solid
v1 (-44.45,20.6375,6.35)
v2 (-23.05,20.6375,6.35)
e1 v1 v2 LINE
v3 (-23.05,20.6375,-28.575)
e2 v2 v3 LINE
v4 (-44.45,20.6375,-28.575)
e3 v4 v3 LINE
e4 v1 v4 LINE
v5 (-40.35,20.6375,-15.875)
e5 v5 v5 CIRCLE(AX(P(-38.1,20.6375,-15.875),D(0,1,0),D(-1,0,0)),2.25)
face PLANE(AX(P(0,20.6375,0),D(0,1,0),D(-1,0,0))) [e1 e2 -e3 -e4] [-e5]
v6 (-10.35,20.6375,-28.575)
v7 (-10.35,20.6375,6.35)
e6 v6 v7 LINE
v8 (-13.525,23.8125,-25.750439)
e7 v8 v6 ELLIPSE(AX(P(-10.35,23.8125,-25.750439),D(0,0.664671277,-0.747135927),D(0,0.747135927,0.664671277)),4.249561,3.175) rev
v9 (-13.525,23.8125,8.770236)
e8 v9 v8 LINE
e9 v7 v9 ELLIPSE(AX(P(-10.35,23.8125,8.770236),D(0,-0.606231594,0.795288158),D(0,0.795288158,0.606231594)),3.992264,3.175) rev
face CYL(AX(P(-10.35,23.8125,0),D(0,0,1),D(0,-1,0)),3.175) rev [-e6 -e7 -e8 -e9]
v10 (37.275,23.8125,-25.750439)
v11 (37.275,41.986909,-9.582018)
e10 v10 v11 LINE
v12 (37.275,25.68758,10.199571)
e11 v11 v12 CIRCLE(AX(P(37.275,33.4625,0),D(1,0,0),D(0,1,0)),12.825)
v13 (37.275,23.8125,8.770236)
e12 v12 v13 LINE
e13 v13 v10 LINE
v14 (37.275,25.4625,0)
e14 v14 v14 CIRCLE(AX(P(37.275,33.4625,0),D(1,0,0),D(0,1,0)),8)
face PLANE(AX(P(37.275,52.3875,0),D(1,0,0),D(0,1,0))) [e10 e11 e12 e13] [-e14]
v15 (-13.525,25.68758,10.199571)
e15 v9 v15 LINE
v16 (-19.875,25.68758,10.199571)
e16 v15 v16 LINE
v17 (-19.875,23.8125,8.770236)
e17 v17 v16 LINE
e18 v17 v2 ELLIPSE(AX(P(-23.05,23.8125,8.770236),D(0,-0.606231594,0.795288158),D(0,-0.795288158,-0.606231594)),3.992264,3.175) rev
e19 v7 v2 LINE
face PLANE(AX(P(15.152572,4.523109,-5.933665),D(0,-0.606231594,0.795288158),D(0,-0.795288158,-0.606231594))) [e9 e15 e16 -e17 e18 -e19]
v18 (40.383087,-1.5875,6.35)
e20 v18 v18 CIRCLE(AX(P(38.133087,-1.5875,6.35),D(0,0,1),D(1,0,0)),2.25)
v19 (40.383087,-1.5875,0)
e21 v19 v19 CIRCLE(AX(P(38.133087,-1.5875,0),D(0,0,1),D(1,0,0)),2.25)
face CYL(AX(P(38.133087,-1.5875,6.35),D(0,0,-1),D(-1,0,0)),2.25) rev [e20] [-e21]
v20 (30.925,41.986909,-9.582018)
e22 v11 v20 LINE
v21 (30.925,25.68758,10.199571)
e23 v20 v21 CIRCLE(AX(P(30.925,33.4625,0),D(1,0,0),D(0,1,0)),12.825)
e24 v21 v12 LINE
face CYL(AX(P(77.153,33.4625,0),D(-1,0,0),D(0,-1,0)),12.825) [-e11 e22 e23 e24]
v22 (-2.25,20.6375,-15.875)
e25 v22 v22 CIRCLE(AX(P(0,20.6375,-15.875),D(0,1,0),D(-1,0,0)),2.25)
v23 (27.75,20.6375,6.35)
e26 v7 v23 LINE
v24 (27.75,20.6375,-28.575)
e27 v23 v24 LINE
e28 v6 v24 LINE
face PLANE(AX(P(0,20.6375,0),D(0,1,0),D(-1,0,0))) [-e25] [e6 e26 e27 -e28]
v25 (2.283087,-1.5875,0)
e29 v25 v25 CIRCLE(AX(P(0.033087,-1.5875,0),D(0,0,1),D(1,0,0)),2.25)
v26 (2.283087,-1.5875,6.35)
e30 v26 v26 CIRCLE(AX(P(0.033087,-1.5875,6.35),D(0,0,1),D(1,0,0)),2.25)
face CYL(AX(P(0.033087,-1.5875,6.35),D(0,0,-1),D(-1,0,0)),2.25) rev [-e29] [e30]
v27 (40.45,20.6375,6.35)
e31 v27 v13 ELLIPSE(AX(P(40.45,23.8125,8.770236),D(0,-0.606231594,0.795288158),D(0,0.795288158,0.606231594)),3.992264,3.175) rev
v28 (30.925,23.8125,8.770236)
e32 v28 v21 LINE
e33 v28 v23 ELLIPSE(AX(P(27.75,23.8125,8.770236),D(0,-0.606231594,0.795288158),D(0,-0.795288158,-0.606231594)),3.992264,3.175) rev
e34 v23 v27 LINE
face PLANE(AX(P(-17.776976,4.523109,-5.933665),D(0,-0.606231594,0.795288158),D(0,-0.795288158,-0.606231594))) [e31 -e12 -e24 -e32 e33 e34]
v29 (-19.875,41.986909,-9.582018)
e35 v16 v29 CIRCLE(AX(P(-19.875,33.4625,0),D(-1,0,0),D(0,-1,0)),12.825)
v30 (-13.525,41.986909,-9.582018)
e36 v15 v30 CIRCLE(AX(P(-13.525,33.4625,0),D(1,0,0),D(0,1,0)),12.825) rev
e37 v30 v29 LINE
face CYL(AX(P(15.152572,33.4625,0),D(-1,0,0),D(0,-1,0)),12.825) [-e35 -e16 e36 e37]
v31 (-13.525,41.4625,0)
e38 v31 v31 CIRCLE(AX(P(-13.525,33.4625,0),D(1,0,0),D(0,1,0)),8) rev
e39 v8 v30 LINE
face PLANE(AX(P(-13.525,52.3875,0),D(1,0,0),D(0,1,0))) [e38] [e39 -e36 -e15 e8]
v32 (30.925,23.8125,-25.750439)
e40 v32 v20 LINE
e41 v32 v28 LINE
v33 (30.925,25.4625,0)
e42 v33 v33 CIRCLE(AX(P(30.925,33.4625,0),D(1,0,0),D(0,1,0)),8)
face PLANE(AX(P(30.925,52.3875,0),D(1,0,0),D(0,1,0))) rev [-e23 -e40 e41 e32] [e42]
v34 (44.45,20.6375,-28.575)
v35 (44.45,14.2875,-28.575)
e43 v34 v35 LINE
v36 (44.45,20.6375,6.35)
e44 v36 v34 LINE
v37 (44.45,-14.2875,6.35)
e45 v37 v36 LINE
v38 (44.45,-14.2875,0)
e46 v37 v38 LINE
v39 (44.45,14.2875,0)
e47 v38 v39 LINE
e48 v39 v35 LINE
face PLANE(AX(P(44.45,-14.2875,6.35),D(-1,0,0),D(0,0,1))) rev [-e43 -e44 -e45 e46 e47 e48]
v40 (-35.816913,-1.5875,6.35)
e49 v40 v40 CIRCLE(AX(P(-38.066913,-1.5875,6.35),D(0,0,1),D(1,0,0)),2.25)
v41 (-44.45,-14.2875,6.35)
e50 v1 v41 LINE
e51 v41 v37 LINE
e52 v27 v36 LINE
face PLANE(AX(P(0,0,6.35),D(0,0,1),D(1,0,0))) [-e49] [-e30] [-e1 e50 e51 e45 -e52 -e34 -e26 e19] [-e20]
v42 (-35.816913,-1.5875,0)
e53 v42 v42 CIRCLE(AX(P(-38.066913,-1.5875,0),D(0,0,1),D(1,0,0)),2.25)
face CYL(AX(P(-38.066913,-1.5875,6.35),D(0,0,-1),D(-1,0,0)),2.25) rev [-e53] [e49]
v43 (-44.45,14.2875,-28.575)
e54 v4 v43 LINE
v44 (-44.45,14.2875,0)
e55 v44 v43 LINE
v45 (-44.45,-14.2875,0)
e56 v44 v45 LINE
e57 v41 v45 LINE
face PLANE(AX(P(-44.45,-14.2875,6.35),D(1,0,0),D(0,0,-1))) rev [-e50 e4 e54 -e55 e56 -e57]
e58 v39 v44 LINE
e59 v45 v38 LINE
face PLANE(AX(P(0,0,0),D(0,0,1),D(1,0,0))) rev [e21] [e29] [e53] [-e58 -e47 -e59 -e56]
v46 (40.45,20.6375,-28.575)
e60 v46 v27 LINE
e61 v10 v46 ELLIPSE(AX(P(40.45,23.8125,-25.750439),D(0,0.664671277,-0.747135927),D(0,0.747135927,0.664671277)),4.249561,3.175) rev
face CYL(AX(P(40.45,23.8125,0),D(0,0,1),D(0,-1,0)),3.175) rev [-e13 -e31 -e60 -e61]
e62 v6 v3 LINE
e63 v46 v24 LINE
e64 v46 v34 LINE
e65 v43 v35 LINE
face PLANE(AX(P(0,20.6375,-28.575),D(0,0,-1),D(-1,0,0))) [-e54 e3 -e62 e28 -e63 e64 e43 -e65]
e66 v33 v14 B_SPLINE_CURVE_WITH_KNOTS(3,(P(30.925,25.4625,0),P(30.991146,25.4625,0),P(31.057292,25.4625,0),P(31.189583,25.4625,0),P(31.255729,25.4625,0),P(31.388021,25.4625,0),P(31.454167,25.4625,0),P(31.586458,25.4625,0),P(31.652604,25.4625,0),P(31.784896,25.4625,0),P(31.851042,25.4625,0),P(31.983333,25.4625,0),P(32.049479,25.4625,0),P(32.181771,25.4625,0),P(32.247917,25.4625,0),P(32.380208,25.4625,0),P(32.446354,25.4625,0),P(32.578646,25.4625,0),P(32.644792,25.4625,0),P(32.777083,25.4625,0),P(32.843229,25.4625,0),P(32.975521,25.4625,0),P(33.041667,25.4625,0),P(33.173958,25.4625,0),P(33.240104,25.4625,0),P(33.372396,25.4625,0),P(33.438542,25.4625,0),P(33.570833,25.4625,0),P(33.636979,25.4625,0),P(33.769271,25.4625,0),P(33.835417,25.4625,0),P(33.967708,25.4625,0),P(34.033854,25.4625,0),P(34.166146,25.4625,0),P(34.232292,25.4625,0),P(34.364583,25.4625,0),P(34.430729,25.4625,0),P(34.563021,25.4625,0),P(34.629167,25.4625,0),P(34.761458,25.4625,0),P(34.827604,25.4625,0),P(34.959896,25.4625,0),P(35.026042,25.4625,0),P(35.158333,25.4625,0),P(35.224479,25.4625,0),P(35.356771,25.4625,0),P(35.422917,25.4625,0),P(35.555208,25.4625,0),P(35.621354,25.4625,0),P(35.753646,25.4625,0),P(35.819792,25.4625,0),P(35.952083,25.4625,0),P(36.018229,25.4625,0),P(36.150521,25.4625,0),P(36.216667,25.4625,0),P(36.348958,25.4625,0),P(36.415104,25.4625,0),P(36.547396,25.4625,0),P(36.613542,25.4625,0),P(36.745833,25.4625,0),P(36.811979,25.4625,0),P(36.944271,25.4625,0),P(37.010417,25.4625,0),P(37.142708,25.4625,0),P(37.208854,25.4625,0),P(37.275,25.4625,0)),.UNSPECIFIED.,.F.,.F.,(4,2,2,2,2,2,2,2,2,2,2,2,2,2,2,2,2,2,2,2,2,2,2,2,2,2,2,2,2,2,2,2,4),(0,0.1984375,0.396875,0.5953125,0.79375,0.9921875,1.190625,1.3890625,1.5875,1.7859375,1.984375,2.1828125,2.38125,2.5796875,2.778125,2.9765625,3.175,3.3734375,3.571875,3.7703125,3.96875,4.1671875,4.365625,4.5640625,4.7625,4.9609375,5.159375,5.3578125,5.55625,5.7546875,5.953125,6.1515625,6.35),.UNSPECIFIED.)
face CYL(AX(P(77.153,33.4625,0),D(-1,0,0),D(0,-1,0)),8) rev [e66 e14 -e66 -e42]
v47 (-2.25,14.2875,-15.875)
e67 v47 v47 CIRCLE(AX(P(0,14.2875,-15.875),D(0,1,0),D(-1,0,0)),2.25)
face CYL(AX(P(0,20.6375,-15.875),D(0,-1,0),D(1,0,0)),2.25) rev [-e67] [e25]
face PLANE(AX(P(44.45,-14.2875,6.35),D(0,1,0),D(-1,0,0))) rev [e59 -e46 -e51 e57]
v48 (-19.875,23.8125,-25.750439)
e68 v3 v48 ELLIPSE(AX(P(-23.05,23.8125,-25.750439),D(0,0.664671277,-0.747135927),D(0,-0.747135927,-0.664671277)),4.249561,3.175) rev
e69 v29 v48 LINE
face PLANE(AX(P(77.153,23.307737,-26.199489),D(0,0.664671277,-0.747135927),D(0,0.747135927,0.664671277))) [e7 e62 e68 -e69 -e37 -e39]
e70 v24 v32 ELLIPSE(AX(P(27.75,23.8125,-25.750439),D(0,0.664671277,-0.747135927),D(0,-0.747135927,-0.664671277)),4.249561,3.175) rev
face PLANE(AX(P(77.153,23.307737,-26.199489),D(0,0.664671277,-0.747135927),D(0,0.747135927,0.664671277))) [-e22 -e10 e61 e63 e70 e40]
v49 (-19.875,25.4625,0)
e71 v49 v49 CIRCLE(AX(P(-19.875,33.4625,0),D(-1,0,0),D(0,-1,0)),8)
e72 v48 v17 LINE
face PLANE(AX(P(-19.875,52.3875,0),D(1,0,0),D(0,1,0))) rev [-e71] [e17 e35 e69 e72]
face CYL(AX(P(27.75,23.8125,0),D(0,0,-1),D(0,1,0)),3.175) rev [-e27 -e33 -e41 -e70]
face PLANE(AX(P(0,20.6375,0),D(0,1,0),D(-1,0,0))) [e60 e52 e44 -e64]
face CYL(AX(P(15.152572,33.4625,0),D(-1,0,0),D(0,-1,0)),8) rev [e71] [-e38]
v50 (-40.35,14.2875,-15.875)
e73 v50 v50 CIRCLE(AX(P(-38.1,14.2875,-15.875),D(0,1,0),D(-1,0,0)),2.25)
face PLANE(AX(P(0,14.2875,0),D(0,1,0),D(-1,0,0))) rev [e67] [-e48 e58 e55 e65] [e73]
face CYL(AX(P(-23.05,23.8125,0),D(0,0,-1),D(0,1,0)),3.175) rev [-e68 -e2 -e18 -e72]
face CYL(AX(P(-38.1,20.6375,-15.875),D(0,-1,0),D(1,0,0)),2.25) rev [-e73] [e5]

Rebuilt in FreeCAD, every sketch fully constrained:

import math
import FreeCAD as App
import Part
import Sketcher
from FreeCAD import Vector
Q = App.Units.Quantity


def edges_at(feature, points):
    """Names of the edges that pass closest to the given points."""
    edges = feature.Shape.Edges
    near = lambda p: min(range(len(edges)), key=lambda i: edges[i].distToShape(Part.Vertex(*p))[0])
    return sorted({f"Edge{near(p) + 1}" for p in points})


def add_polygon(sketch, points):
    """Adds a closed chain of lines whose ends are joined by coincident constraints."""
    first, n = sketch.GeometryCount, len(points)
    for a, b in zip(points, points[1:] + points[:1]):
        sketch.addGeometry(Part.LineSegment(App.Vector(*a, 0), App.Vector(*b, 0)), False)
    for i in range(n):
        sketch.addConstraint(Sketcher.Constraint("Coincident", first + i, 2, first + (i + 1) % n, 1))

doc = App.newDocument("Part")
body = doc.addObject("PartDesign::Body", "Body")

sketch1 = doc.addObject("Sketcher::SketchObject", "Sketch")
body.addObject(sketch1)
sketch1.AttachmentSupport = (doc.XY_Plane, [""])
sketch1.MapMode = "FlatFace"
add_polygon(sketch1, [(-44.45, 14.2875), (-44.45, -14.2875), (44.45, -14.2875), (44.45, 14.2875)])
sketch1.addGeometry(Part.Circle(Vector(-38.066913, -1.5875, 0), Vector(0, 0, 1), 2.25), False)
sketch1.addGeometry(Part.Circle(Vector(0.033087, -1.5875, 0), Vector(0, 0, 1), 2.25), False)
sketch1.addGeometry(Part.Circle(Vector(38.133087, -1.5875, 0), Vector(0, 0, 1), 2.25), False)
sketch1.addConstraint([
    Sketcher.Constraint("Vertical", 0),
    Sketcher.Constraint("Horizontal", 1),
    Sketcher.Constraint("Vertical", 2),
    Sketcher.Constraint("Horizontal", 3),
    Sketcher.Constraint("Equal", 4, 5),
    Sketcher.Constraint("Equal", 5, 6),
    Sketcher.Constraint("Symmetric", 0, 2, 2, 2, -1, 1),
    Sketcher.Constraint("Horizontal", 4, 3, 5, 3),
    Sketcher.Constraint("Horizontal", 5, 3, 6, 3),
    Sketcher.Constraint("DistanceX", 1, 1, 1, 2, Q("3.5 in")),
    Sketcher.Constraint("DistanceX", 4, 3, 6, 3, Q("3 in")),
    Sketcher.Constraint("DistanceX", 4, 3, 5, 3, Q("1.5 in")),
    Sketcher.Constraint("DistanceY", 0, 2, 4, 3, Q("0.5 in")),
    Sketcher.Constraint("Diameter", 4, 4.5),
    Sketcher.Constraint("DistanceY", 0, 2, 0, 1, Q("1.125 in")),
    Sketcher.Constraint("DistanceX", 4, 3, -1, 1, 38.066913),
])
pad1 = doc.addObject("PartDesign::Pad", "Pad")
body.addObject(pad1)
pad1.Profile = sketch1
pad1.Length = Q("0.25 in")

sketch2 = doc.addObject("Sketcher::SketchObject", "Sketch001")
body.addObject(sketch2)
sketch2.AttachmentSupport = (doc.XZ_Plane, [""])
sketch2.MapMode = "FlatFace"
sketch2.AttachmentOffset = App.Placement(Vector(0, 0, -0.5625 * 25.4), App.Rotation())
add_polygon(sketch2, [(-44.45, -28.575), (-44.45, 6.35), (44.45, 6.35), (44.45, -28.575)])
sketch2.addGeometry(Part.Circle(Vector(-38.1, -15.875, 0), Vector(0, 0, 1), 2.25), False)
sketch2.addGeometry(Part.Circle(Vector(0, -15.875, 0), Vector(0, 0, 1), 2.25), False)
sketch2.addConstraint([
    Sketcher.Constraint("Vertical", 0),
    Sketcher.Constraint("Horizontal", 1),
    Sketcher.Constraint("Vertical", 2),
    Sketcher.Constraint("Horizontal", 3),
    Sketcher.Constraint("Equal", 4, 5),
    Sketcher.Constraint("PointOnObject", 5, 3, -2),
    Sketcher.Constraint("Horizontal", 4, 3, 5, 3),
    Sketcher.Constraint("DistanceX", 1, 1, 1, 2, Q("3.5 in")),
    Sketcher.Constraint("DistanceX", 4, 3, -1, 1, Q("1.5 in")),
    Sketcher.Constraint("DistanceY", 2, 2, 5, 3, Q("0.5 in")),
    Sketcher.Constraint("Diameter", 4, 4.5),
    Sketcher.Constraint("DistanceY", 0, 1, 0, 2, Q("1.375 in")),
    Sketcher.Constraint("DistanceX", 0, 2, -1, 1, Q("1.75 in")),
    Sketcher.Constraint("DistanceY", -1, 1, 0, 2, Q("0.25 in")),
])
pad2 = doc.addObject("PartDesign::Pad", "Pad001")
body.addObject(pad2)
pad2.Profile = sketch2
pad2.Length = Q("0.25 in")
pad2.Reversed = True

sketch3 = doc.addObject("Sketcher::SketchObject", "Sketch002")
body.addObject(sketch3)
sketch3.AttachmentSupport = (doc.XZ_Plane, [""])
sketch3.MapMode = "FlatFace"
sketch3.AttachmentOffset = App.Placement(Vector(0, 0, -0.5625 * 25.4), App.Rotation())
add_polygon(sketch3, [(-19.875, -28.575), (-19.875, 0), (-13.525, 0), (-13.525, -28.575)])
add_polygon(sketch3, [(30.925, -28.575), (30.925, 0), (37.275, 0), (37.275, -28.575)])
sketch3.addConstraint([
    Sketcher.Constraint("Vertical", 0),
    Sketcher.Constraint("Horizontal", 1),
    Sketcher.Constraint("Vertical", 2),
    Sketcher.Constraint("Horizontal", 3),
    Sketcher.Constraint("Vertical", 4),
    Sketcher.Constraint("Horizontal", 5),
    Sketcher.Constraint("Vertical", 6),
    Sketcher.Constraint("Horizontal", 7),
    Sketcher.Constraint("PointOnObject", 0, 2, -1),
    Sketcher.Constraint("PointOnObject", 4, 2, -1),
    Sketcher.Constraint("Horizontal", 3, 2, 6, 2),
    Sketcher.Constraint("Equal", 3, 5),
    Sketcher.Constraint("DistanceX", 0, 2, 4, 2, Q("2 in")),
    Sketcher.Constraint("DistanceX", 1, 1, 1, 2, Q("0.25 in")),
    Sketcher.Constraint("DistanceY", 0, 1, 0, 2, Q("1.125 in")),
    Sketcher.Constraint("DistanceX", 0, 2, -1, 1, 19.875),
])
pad3 = doc.addObject("PartDesign::Pad", "Pad002")
body.addObject(pad3)
pad3.Profile = sketch3
pad3.Length = Q("1.5 in")
pad3.Reversed = True

sketch4 = doc.addObject("Sketcher::SketchObject", "Sketch003")
body.addObject(sketch4)
sketch4.AttachmentSupport = (doc.YZ_Plane, [""])
sketch4.MapMode = "FlatFace"
sketch4.AttachmentOffset = App.Placement(Vector(0, 0, -19.875), App.Rotation())
sketch4.addGeometry([
    Part.ArcOfCircle(Part.Circle(Vector(33.4625, 0, 0), Vector(0, 0, 1), 12.825), math.radians(90), math.radians(127.317519)),
    Part.ArcOfCircle(Part.Circle(Vector(33.4625, 0, 0), Vector(0, 0, 1), 12.825), math.radians(0), math.radians(90)),
    Part.ArcOfCircle(Part.Circle(Vector(33.4625, 0, 0), Vector(0, 0, 1), 12.825), math.radians(-48.342888), math.radians(0)),
    Part.ArcOfCircle(Part.Circle(Vector(33.4625, 0, 0), Vector(0, 0, 1), 12.825), math.radians(180), math.radians(311.657112)),
    Part.LineSegment(Vector(20.6375, 0, 0), Vector(20.6375, 6.35, 0)),
    Part.LineSegment(Vector(20.6375, 6.35, 0), Vector(25.68758, 10.199571, 0)),
    Part.ArcOfCircle(Part.Circle(Vector(33.4625, 0, 0), Vector(0, 0, 1), 8), math.radians(0), math.radians(90)),
    Part.ArcOfCircle(Part.Circle(Vector(33.4625, 0, 0), Vector(0, 0, 1), 8), math.radians(90), math.radians(180)),
    Part.ArcOfCircle(Part.Circle(Vector(33.4625, 0, 0), Vector(0, 0, 1), 8), math.radians(180), math.radians(360)),
], False)
sketch4.addConstraint([
    Sketcher.Constraint("Tangent", 0, 1, 1, 2),
    Sketcher.Constraint("Tangent", 1, 1, 2, 2),
    Sketcher.Constraint("Tangent", 2, 1, 3, 2),
    Sketcher.Constraint("Tangent", 3, 1, 4, 1),
    Sketcher.Constraint("Coincident", 4, 2, 5, 1),
    Sketcher.Constraint("Tangent", 5, 2, 0, 2),
    Sketcher.Constraint("Tangent", 6, 2, 7, 1),
    Sketcher.Constraint("Tangent", 7, 2, 8, 1),
    Sketcher.Constraint("Tangent", 8, 2, 6, 1),
    Sketcher.Constraint("Vertical", 4),
    Sketcher.Constraint("Coincident", 2, 3, 0, 3),
    Sketcher.Constraint("Coincident", 6, 3, 0, 3),
    Sketcher.Constraint("Equal", 2, 3),
    Sketcher.Constraint("PointOnObject", 0, 3, -1),
    Sketcher.Constraint("PointOnObject", 1, 1, -1),
    Sketcher.Constraint("PointOnObject", 7, 2, -1),
    Sketcher.Constraint("PointOnObject", 8, 2, -1),
    Sketcher.Constraint("Vertical", 8, 3, 0, 1),
    Sketcher.Constraint("Vertical", 0, 1, 6, 2),
    Sketcher.Constraint("DistanceY", 4, 1, 4, 2, Q("0.25 in")),
    Sketcher.Constraint("Radius", 0, 12.825),
    Sketcher.Constraint("Radius", 6, 8.0),
    Sketcher.Constraint("DistanceX", -1, 1, 3, 1, Q("0.8125 in")),
    Sketcher.Constraint("DistanceX", -1, 1, 2, 1, 41.986909),
])
pad4 = doc.addObject("PartDesign::Pad", "Pad003")
body.addObject(pad4)
pad4.Profile = sketch4
pad4.Length = Q("0.25 in")

sketch5 = doc.addObject("Sketcher::SketchObject", "Sketch004")
body.addObject(sketch5)
sketch5.AttachmentSupport = (doc.YZ_Plane, [""])
sketch5.MapMode = "FlatFace"
sketch5.AttachmentOffset = App.Placement(Vector(0, 0, -19.875), App.Rotation())
sketch5.addGeometry([
    Part.LineSegment(Vector(20.6375, -28.575, 0), Vector(41.986909, -9.582018, 0)),
    Part.ArcOfCircle(Part.Circle(Vector(33.4625, 0, 0), Vector(0, 0, 1), 12.825), math.radians(-48.342888), math.radians(0)),
    Part.LineSegment(Vector(46.2875, 0, 0), Vector(52.3875, 0, 0)),
    Part.LineSegment(Vector(52.3875, 0, 0), Vector(52.3875, -28.575, 0)),
    Part.LineSegment(Vector(52.3875, -28.575, 0), Vector(20.6375, -28.575, 0)),
    Part.LineSegment(Vector(41.4625, 0, 0), Vector(25.4625, 0, 0)),
    Part.ArcOfCircle(Part.Circle(Vector(33.4625, 0, 0), Vector(0, 0, 1), 8), math.radians(90), math.radians(180)),
    Part.ArcOfCircle(Part.Circle(Vector(33.4625, 0, 0), Vector(0, 0, 1), 8), math.radians(0), math.radians(90)),
    Part.ArcOfCircle(Part.Circle(Vector(33.4625, 0, 0), Vector(0, 0, 1), 8), math.radians(180), math.radians(360)),
    Part.LineSegment(Vector(25.4625, 0, 0), Vector(41.4625, 0, 0)),
], False)
sketch5.addConstraint([
    Sketcher.Constraint("Tangent", 0, 2, 1, 1),
    Sketcher.Constraint("Coincident", 1, 2, 2, 1),
    Sketcher.Constraint("Coincident", 2, 2, 3, 1),
    Sketcher.Constraint("Coincident", 3, 2, 4, 1),
    Sketcher.Constraint("Coincident", 4, 2, 0, 1),
    Sketcher.Constraint("Coincident", 5, 2, 6, 2),
    Sketcher.Constraint("Tangent", 6, 1, 7, 2),
    Sketcher.Constraint("Coincident", 7, 1, 5, 1),
    Sketcher.Constraint("Coincident", 8, 1, 9, 1),
    Sketcher.Constraint("Coincident", 9, 2, 8, 2),
    Sketcher.Constraint("Horizontal", 2),
    Sketcher.Constraint("Vertical", 3),
    Sketcher.Constraint("Horizontal", 4),
    Sketcher.Constraint("Horizontal", 5),
    Sketcher.Constraint("Horizontal", 9),
    Sketcher.Constraint("Coincident", 6, 3, 1, 3),
    Sketcher.Constraint("Coincident", 8, 3, 1, 3),
    Sketcher.Constraint("Coincident", 8, 1, 5, 2),
    Sketcher.Constraint("Equal", 6, 7),
    Sketcher.Constraint("PointOnObject", 1, 3, -1),
    Sketcher.Constraint("PointOnObject", 1, 2, -1),
    Sketcher.Constraint("PointOnObject", 5, 2, -1),
    Sketcher.Constraint("Vertical", 8, 3, 6, 1),
    Sketcher.Constraint("DistanceX", 4, 2, 4, 1, Q("1.25 in")),
    Sketcher.Constraint("DistanceY", 3, 2, 3, 1, Q("1.125 in")),
    Sketcher.Constraint("Radius", 1, 12.825),
    Sketcher.Constraint("Radius", 6, 8.0),
    Sketcher.Constraint("Distance", 0, Q("1.125 in")),
    Sketcher.Constraint("DistanceX", -1, 1, 2, 2, Q("2.0625 in")),
])
pocket1 = doc.addObject("PartDesign::Pocket", "Pocket")
body.addObject(pocket1)
pocket1.Profile = sketch5
pocket1.Length = Q("3.82 in")
pocket1.Reversed = True

sketch6 = doc.addObject("Sketcher::SketchObject", "Sketch005")
body.addObject(sketch6)
sketch6.AttachmentSupport = (doc.YZ_Plane, [""])
sketch6.MapMode = "FlatFace"
sketch6.AttachmentOffset = App.Placement(Vector(0, 0, 30.925), App.Rotation())
sketch6.addGeometry([
    Part.LineSegment(Vector(46.2875, 0, 0), Vector(41.4625, 0, 0)),
    Part.ArcOfCircle(Part.Circle(Vector(33.4625, 0, 0), Vector(0, 0, 1), 8), math.radians(180), math.radians(360)),
    Part.LineSegment(Vector(25.4625, 0, 0), Vector(20.6375, 0, 0)),
    Part.LineSegment(Vector(20.6375, 0, 0), Vector(20.6375, -28.575, 0)),
    Part.LineSegment(Vector(20.6375, -28.575, 0), Vector(41.986909, -9.582018, 0)),
    Part.ArcOfCircle(Part.Circle(Vector(33.4625, 0, 0), Vector(0, 0, 1), 12.825), math.radians(-48.342888), math.radians(0)),
    Part.LineSegment(Vector(20.6375, 6.35, 0), Vector(20.6375, 0, 0)),
    Part.LineSegment(Vector(20.6375, 0, 0), Vector(25.4625, 0, 0)),
    Part.ArcOfCircle(Part.Circle(Vector(33.4625, 0, 0), Vector(0, 0, 1), 8), math.radians(0), math.radians(180)),
    Part.LineSegment(Vector(41.4625, 0, 0), Vector(46.2875, 0, 0)),
    Part.ArcOfCircle(Part.Circle(Vector(33.4625, 0, 0), Vector(0, 0, 1), 12.825), math.radians(0), math.radians(127.317519)),
    Part.LineSegment(Vector(25.68758, 10.199571, 0), Vector(20.6375, 6.35, 0)),
], False)
sketch6.addConstraint([
    Sketcher.Constraint("Coincident", 0, 2, 1, 2),
    Sketcher.Constraint("Coincident", 1, 1, 2, 1),
    Sketcher.Constraint("Coincident", 2, 2, 3, 1),
    Sketcher.Constraint("Coincident", 3, 2, 4, 1),
    Sketcher.Constraint("Tangent", 4, 2, 5, 1),
    Sketcher.Constraint("Coincident", 5, 2, 0, 1),
    Sketcher.Constraint("Coincident", 6, 2, 7, 1),
    Sketcher.Constraint("Coincident", 7, 2, 8, 2),
    Sketcher.Constraint("Coincident", 8, 1, 9, 1),
    Sketcher.Constraint("Coincident", 9, 2, 10, 1),
    Sketcher.Constraint("Tangent", 10, 2, 11, 1),
    Sketcher.Constraint("Coincident", 11, 2, 6, 1),
    Sketcher.Constraint("Horizontal", 0),
    Sketcher.Constraint("Horizontal", 2),
    Sketcher.Constraint("Vertical", 3),
    Sketcher.Constraint("Vertical", 6),
    Sketcher.Constraint("Horizontal", 7),
    Sketcher.Constraint("Horizontal", 9),
    Sketcher.Constraint("Coincident", 5, 3, 1, 3),
    Sketcher.Constraint("Coincident", 8, 3, 1, 3),
    Sketcher.Constraint("Coincident", 10, 3, 1, 3),
    Sketcher.Constraint("Coincident", 6, 2, 2, 2),
    Sketcher.Constraint("Coincident", 8, 1, 0, 2),
    Sketcher.Constraint("Equal", 5, 10),
    Sketcher.Constraint("PointOnObject", 1, 3, -1),
    Sketcher.Constraint("PointOnObject", 0, 2, -1),
    Sketcher.Constraint("PointOnObject", 1, 1, -1),
    Sketcher.Constraint("Equal", 0, 2),
    Sketcher.Constraint("DistanceY", 6, 2, 6, 1, Q("0.25 in")),
    Sketcher.Constraint("DistanceY", 3, 2, 3, 1, Q("1.125 in")),
    Sketcher.Constraint("Radius", 1, 8.0),
    Sketcher.Constraint("Radius", 5, 12.825),
    Sketcher.Constraint("DistanceX", -1, 1, 2, 2, Q("0.8125 in")),
])
pad5 = doc.addObject("PartDesign::Pad", "Pad004")
body.addObject(pad5)
pad5.Profile = sketch6
pad5.Length = Q("0.25 in")
doc.recompute()

fillet = doc.addObject("PartDesign::Fillet", "Fillet")
body.addObject(fillet)
fillet.Base = (pad5, edges_at(pad5, [
    (-13.525, 20.637, -11.113),
    (-19.875, 20.637, -11.113),
    (30.925, 20.637, -14.287),
    (37.275, 20.637, -14.287),
]))
fillet.Radius = Q("0.125 in")

doc.recompute()
